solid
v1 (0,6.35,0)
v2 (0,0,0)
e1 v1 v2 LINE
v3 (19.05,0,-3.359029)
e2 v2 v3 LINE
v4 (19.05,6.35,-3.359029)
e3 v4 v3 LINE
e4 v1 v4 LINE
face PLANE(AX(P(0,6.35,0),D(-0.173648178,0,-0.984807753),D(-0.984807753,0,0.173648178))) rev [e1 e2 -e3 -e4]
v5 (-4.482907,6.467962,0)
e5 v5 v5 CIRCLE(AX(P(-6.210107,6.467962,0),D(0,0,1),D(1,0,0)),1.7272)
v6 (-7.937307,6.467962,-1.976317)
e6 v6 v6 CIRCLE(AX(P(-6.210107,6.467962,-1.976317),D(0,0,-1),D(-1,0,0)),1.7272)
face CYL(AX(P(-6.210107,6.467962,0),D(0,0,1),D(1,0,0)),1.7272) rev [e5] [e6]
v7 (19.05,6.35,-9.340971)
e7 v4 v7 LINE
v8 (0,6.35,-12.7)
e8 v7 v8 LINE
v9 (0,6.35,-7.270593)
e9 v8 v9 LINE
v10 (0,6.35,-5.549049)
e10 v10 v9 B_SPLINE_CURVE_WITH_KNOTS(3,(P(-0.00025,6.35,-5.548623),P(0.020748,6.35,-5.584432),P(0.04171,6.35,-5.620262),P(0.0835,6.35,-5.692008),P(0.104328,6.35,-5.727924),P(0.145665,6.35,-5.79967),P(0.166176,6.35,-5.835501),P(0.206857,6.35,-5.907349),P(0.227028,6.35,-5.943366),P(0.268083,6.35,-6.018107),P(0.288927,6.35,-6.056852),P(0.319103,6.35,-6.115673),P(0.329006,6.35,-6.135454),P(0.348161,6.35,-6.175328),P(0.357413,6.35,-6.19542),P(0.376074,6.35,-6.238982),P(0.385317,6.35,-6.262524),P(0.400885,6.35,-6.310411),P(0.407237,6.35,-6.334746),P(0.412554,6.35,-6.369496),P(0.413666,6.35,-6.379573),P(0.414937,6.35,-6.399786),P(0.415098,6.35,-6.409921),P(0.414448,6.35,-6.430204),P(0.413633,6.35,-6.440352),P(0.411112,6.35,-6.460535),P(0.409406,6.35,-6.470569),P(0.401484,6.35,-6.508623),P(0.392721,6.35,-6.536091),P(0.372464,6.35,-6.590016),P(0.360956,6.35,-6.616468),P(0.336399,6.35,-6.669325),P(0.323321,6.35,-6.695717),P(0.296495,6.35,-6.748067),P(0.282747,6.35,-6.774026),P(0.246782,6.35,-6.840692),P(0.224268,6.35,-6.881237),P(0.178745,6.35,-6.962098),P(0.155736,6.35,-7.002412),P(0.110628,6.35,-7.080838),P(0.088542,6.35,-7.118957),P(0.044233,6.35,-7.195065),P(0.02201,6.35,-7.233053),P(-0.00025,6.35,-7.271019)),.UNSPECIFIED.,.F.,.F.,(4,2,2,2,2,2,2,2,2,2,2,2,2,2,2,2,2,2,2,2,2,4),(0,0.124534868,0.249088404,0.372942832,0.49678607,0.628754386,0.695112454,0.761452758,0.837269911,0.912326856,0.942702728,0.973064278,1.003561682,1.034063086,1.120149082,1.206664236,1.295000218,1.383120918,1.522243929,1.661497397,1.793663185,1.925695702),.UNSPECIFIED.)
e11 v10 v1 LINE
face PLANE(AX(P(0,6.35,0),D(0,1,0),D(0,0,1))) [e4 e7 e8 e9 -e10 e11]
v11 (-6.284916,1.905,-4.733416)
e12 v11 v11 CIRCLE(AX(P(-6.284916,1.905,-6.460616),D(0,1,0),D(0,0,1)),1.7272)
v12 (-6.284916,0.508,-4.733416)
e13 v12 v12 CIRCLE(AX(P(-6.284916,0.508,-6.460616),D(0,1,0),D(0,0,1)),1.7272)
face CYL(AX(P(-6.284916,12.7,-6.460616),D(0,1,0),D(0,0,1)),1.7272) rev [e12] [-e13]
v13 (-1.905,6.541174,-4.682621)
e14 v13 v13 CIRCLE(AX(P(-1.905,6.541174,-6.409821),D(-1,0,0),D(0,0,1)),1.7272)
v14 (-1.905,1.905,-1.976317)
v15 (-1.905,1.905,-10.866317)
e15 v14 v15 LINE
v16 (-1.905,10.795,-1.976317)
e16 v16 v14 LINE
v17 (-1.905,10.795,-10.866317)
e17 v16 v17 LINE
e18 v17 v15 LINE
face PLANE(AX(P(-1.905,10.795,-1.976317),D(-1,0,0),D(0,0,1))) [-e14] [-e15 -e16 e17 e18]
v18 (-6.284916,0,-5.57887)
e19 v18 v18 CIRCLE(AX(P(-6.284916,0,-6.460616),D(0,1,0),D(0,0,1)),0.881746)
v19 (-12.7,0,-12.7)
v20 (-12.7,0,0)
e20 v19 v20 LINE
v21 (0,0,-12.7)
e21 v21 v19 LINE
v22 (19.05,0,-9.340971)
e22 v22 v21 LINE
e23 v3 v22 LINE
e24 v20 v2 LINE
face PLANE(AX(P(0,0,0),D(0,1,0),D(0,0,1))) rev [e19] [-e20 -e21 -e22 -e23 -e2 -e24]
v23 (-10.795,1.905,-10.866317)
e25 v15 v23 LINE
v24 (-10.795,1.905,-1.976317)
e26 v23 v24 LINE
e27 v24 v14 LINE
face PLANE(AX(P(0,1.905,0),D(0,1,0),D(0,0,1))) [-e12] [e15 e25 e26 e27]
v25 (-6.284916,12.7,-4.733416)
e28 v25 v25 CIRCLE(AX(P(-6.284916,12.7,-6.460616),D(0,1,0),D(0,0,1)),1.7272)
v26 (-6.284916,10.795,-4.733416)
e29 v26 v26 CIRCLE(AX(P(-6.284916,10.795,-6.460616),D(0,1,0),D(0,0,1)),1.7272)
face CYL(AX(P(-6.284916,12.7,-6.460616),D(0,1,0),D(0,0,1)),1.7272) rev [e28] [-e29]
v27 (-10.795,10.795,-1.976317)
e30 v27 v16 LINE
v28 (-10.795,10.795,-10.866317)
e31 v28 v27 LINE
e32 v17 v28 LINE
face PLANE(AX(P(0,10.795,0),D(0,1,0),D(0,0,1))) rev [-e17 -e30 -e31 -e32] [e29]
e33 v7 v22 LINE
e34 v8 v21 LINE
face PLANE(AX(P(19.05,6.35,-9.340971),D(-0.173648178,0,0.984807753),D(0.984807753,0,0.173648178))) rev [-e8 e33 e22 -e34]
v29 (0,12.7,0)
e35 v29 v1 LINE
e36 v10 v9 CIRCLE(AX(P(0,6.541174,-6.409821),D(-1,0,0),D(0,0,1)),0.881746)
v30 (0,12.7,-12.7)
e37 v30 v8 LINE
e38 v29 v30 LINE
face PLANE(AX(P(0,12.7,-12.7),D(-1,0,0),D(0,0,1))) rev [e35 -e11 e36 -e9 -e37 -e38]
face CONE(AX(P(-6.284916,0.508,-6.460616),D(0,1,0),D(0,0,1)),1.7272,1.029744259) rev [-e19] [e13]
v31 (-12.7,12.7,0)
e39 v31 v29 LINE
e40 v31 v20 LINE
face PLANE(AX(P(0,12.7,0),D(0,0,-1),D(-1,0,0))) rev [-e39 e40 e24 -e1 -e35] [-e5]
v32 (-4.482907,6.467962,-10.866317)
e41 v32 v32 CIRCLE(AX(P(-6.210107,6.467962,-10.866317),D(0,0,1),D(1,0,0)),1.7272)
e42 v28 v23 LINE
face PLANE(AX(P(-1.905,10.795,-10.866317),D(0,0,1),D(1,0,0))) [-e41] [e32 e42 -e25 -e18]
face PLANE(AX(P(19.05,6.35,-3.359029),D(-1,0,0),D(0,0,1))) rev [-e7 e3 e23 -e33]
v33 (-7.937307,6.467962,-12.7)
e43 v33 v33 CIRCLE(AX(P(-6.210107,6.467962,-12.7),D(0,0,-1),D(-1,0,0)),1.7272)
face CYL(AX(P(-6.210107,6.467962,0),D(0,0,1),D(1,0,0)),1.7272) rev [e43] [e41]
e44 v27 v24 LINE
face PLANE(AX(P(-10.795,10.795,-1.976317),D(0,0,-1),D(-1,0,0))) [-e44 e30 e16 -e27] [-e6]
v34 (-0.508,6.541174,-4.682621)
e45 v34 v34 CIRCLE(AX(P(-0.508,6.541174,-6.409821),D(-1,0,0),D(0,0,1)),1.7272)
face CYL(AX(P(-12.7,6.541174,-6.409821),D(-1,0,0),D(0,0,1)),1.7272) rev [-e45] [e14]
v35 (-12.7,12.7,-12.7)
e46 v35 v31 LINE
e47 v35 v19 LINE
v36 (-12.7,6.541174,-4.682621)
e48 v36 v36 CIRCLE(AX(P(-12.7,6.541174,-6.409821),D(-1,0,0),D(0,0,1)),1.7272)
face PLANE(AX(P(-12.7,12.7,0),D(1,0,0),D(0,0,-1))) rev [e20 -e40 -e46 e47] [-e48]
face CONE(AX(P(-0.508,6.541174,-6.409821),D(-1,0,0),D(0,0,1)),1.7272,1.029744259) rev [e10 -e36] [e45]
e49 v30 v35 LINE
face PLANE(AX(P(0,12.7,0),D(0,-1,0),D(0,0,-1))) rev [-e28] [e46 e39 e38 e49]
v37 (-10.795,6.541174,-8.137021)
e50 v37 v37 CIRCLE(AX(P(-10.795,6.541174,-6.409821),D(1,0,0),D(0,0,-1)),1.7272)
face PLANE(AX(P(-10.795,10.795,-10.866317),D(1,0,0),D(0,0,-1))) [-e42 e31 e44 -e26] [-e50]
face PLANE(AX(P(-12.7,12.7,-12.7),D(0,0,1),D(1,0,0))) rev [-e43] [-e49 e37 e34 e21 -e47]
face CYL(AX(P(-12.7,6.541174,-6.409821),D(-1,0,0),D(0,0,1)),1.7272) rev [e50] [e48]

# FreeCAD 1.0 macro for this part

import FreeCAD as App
import Part
import Sketcher
Q = App.Units.Quantity

doc = App.newDocument("Part")
body = doc.addObject("PartDesign::Body", "Body")

# Sketch on XZ plane
sketch1 = doc.addObject("Sketcher::SketchObject", "Sketch")
body.addObject(sketch1)
sketch1.AttachmentSupport = (doc.XZ_Plane, [""])
sketch1.MapMode = "FlatFace"
sketch1.addGeometry(Part.LineSegment(App.Vector(0, 0, 0), App.Vector(19, -3, 0)), False)
sketch1.addGeometry(Part.LineSegment(App.Vector(19, -3, 0), App.Vector(19, -9, 0)), False)
sketch1.addGeometry(Part.LineSegment(App.Vector(19, -9, 0), App.Vector(0, -13, 0)), False)
sketch1.addGeometry(Part.LineSegment(App.Vector(0, -13, 0), App.Vector(0, 0, 0)), False)
sketch1.addConstraint(Sketcher.Constraint("Coincident", 0, 2, 1, 1))
sketch1.addConstraint(Sketcher.Constraint("Coincident", 1, 2, 2, 1))
sketch1.addConstraint(Sketcher.Constraint("Coincident", 2, 2, 3, 1))
sketch1.addConstraint(Sketcher.Constraint("Coincident", 3, 2, 0, 1))
sketch1.addConstraint(Sketcher.Constraint("Vertical", 1))
sketch1.addConstraint(Sketcher.Constraint("Vertical", 3))
sketch1.addConstraint(Sketcher.Constraint("Coincident", 3, 2, -1, 1))
sketch1.addConstraint(Sketcher.Constraint("Equal", 0, 2))
sketch1.addConstraint(Sketcher.Constraint("DistanceY", 3, 1, 3, 2, Q("0.5 in")))
sketch1.addConstraint(Sketcher.Constraint("Angle", 0, Q("-10 deg")))
sketch1.addConstraint(Sketcher.Constraint("DistanceX", -1, 1, 0, 2, Q("0.75 in")))
pad1 = doc.addObject("PartDesign::Pad", "Pad")
body.addObject(pad1)
pad1.Profile = sketch1
pad1.Length = Q("0.25 in")
pad1.Reversed = True

# Sketch on XZ plane
sketch2 = doc.addObject("Sketcher::SketchObject", "Sketch001")
body.addObject(sketch2)
sketch2.AttachmentSupport = (doc.XZ_Plane, [""])
sketch2.MapMode = "FlatFace"
sketch2.addGeometry(Part.LineSegment(App.Vector(-13, -13, 0), App.Vector(-13, 0, 0)), False)
sketch2.addGeometry(Part.LineSegment(App.Vector(-13, 0, 0), App.Vector(0, 0, 0)), False)
sketch2.addGeometry(Part.LineSegment(App.Vector(0, 0, 0), App.Vector(0, -13, 0)), False)
sketch2.addGeometry(Part.LineSegment(App.Vector(0, -13, 0), App.Vector(-13, -13, 0)), False)
sketch2.addConstraint(Sketcher.Constraint("Coincident", 0, 2, 1, 1))
sketch2.addConstraint(Sketcher.Constraint("Coincident", 1, 2, 2, 1))
sketch2.addConstraint(Sketcher.Constraint("Coincident", 2, 2, 3, 1))
sketch2.addConstraint(Sketcher.Constraint("Coincident", 3, 2, 0, 1))
sketch2.addConstraint(Sketcher.Constraint("Vertical", 0))
sketch2.addConstraint(Sketcher.Constraint("Horizontal", 1))
sketch2.addConstraint(Sketcher.Constraint("Vertical", 2))
sketch2.addConstraint(Sketcher.Constraint("Horizontal", 3))
sketch2.addConstraint(Sketcher.Constraint("Coincident", 1, 2, -1, 1))
sketch2.addConstraint(Sketcher.Constraint("Equal", 3, 0))
sketch2.addConstraint(Sketcher.Constraint("DistanceX", 1, 1, 1, 2, Q("0.5 in")))
pad2 = doc.addObject("PartDesign::Pad", "Pad001")
body.addObject(pad2)
pad2.Profile = sketch2
pad2.Length = Q("0.5 in")
pad2.Reversed = True

# Sketch on XZ plane
sketch3 = doc.addObject("Sketcher::SketchObject", "Sketch002")
body.addObject(sketch3)
sketch3.AttachmentSupport = (doc.XZ_Plane, [""])
sketch3.MapMode = "FlatFace"
sketch3.AttachmentOffset = App.Placement(App.Vector(0, 0, -0.25 * 25.4), App.Rotation())
sketch3.addGeometry(Part.LineSegment(App.Vector(-11, -11, 0), App.Vector(-11, -2, 0)), False)
sketch3.addGeometry(Part.LineSegment(App.Vector(-11, -2, 0), App.Vector(-2, -2, 0)), False)
sketch3.addGeometry(Part.LineSegment(App.Vector(-2, -2, 0), App.Vector(-2, -11, 0)), False)
sketch3.addGeometry(Part.LineSegment(App.Vector(-2, -11, 0), App.Vector(-11, -11, 0)), False)
sketch3.addConstraint(Sketcher.Constraint("Coincident", 0, 2, 1, 1))
sketch3.addConstraint(Sketcher.Constraint("Coincident", 1, 2, 2, 1))
sketch3.addConstraint(Sketcher.Constraint("Coincident", 2, 2, 3, 1))
sketch3.addConstraint(Sketcher.Constraint("Coincident", 3, 2, 0, 1))
sketch3.addConstraint(Sketcher.Constraint("Vertical", 0))
sketch3.addConstraint(Sketcher.Constraint("Horizontal", 1))
sketch3.addConstraint(Sketcher.Constraint("Vertical", 2))
sketch3.addConstraint(Sketcher.Constraint("Horizontal", 3))
sketch3.addConstraint(Sketcher.Constraint("Equal", 3, 0))
sketch3.addConstraint(Sketcher.Constraint("DistanceX", 1, 1, 1, 2, Q("0.35 in")))
sketch3.addConstraint(Sketcher.Constraint("DistanceX", 0, 2, -1, 1, Q("0.425 in")))
sketch3.addConstraint(Sketcher.Constraint("DistanceY", 0, 2, -1, 1, 1.976317))
pocket1 = doc.addObject("PartDesign::Pocket", "Pocket")
body.addObject(pocket1)
pocket1.Profile = sketch3
pocket1.Type = "TwoLengths"
pocket1.Length = Q("0.175 in")
pocket1.Length2 = Q("0.175 in")

# Sketch on XY plane
sketch4 = doc.addObject("Sketcher::SketchObject", "Sketch003")
body.addObject(sketch4)
sketch4.AttachmentSupport = (doc.XY_Plane, [""])
sketch4.MapMode = "FlatFace"
sketch4.addGeometry(Part.Circle(App.Vector(-6.2, 6.5, 0), App.Vector(0, 0, 1), 1.7), False)
sketch4.addGeometry(Part.Circle(App.Vector(-17.8, 4.6, 0), App.Vector(0, 0, 1), 1.7), False)
sketch4.addConstraint(Sketcher.Constraint("Equal", 0, 1))
sketch4.addConstraint(Sketcher.Constraint("Diameter", 0, Q("0.136 in")))
sketch4.addConstraint(Sketcher.Constraint("DistanceX", 1, 3, -1, 1, 17.791429))
sketch4.addConstraint(Sketcher.Constraint("DistanceY", -1, 1, 1, 3, 4.56314))
sketch4.addConstraint(Sketcher.Constraint("DistanceX", 0, 3, -1, 1, 6.210107))
sketch4.addConstraint(Sketcher.Constraint("DistanceY", -1, 1, 0, 3, 6.467962))
doc.recompute()
hole = doc.addObject("PartDesign::Hole", "Hole")
body.addObject(hole)
hole.Profile = sketch4
hole.ThreadType = "None"
hole.Diameter = Q("0.136 in")
hole.DepthType = "Dimension"
hole.Depth = Q("0.4836 in")
hole.DrillPoint = "Angled"
hole.DrillPointAngle = 118

# Sketch on XY plane
sketch5 = doc.addObject("Sketcher::SketchObject", "Sketch004")
body.addObject(sketch5)
sketch5.AttachmentSupport = (doc.XY_Plane, [""])
sketch5.MapMode = "FlatFace"
sketch5.AttachmentOffset = App.Placement(App.Vector(0, 0, -0.5 * 25.4), App.Rotation())
sketch5.addGeometry(Part.Circle(App.Vector(-6.2, 6.5, 0), App.Vector(0, 0, 1), 1.7), False)
sketch5.addConstraint(Sketcher.Constraint("Diameter", 0, Q("0.136 in")))
sketch5.addConstraint(Sketcher.Constraint("DistanceX", 0, 3, -1, 1, 6.210107))
sketch5.addConstraint(Sketcher.Constraint("DistanceY", -1, 1, 0, 3, 6.467962))
doc.recompute()
hole2 = doc.addObject("PartDesign::Hole", "Hole001")
body.addObject(hole2)
hole2.Profile = sketch5
hole2.ThreadType = "None"
hole2.Diameter = Q("0.136 in")
hole2.DepthType = "Dimension"
hole2.Depth = Q("0.48 in")
hole2.DrillPoint = "Angled"
hole2.DrillPointAngle = 118
hole2.Reversed = True

# Sketch on XZ plane
sketch6 = doc.addObject("Sketcher::SketchObject", "Sketch005")
body.addObject(sketch6)
sketch6.AttachmentSupport = (doc.XZ_Plane, [""])
sketch6.MapMode = "FlatFace"
sketch6.AttachmentOffset = App.Placement(App.Vector(0, 0, -0.5 * 25.4), App.Rotation())
sketch6.addGeometry(Part.Circle(App.Vector(-6.3, -6.5, 0), App.Vector(0, 0, 1), 1.7), False)
sketch6.addConstraint(Sketcher.Constraint("Diameter", 0, Q("0.136 in")))
sketch6.addConstraint(Sketcher.Constraint("DistanceX", 0, 3, -1, 1, 6.284916))
sketch6.addConstraint(Sketcher.Constraint("DistanceY", 0, 3, -1, 1, 6.460616))
doc.recompute()
hole3 = doc.addObject("PartDesign::Hole", "Hole002")
body.addObject(hole3)
hole3.Profile = sketch6
hole3.ThreadType = "None"
hole3.Diameter = Q("0.136 in")
hole3.DepthType = "Dimension"
hole3.Depth = Q("0.48 in")
hole3.DrillPoint = "Angled"
hole3.DrillPointAngle = 118
hole3.Reversed = True

# Sketch on YZ plane
sketch7 = doc.addObject("Sketcher::SketchObject", "Sketch006")
body.addObject(sketch7)
sketch7.AttachmentSupport = (doc.YZ_Plane, [""])
sketch7.MapMode = "FlatFace"
sketch7.AttachmentOffset = App.Placement(App.Vector(0, 0, -0.5 * 25.4), App.Rotation())
sketch7.addGeometry(Part.Circle(App.Vector(6.5, -6.4, 0), App.Vector(0, 0, 1), 1.7), False)
sketch7.addConstraint(Sketcher.Constraint("Diameter", 0, Q("0.136 in")))
sketch7.addConstraint(Sketcher.Constraint("DistanceY", 0, 3, -1, 1, 6.409821))
sketch7.addConstraint(Sketcher.Constraint("DistanceX", -1, 1, 0, 3, 6.541174))
doc.recompute()
hole4 = doc.addObject("PartDesign::Hole", "Hole003")
body.addObject(hole4)
hole4.Profile = sketch7
hole4.ThreadType = "None"
hole4.Diameter = Q("0.136 in")
hole4.DepthType = "Dimension"
hole4.Depth = Q("0.48 in")
hole4.DrillPoint = "Angled"
hole4.DrillPointAngle = 118
hole4.Reversed = True

doc.recompute()
